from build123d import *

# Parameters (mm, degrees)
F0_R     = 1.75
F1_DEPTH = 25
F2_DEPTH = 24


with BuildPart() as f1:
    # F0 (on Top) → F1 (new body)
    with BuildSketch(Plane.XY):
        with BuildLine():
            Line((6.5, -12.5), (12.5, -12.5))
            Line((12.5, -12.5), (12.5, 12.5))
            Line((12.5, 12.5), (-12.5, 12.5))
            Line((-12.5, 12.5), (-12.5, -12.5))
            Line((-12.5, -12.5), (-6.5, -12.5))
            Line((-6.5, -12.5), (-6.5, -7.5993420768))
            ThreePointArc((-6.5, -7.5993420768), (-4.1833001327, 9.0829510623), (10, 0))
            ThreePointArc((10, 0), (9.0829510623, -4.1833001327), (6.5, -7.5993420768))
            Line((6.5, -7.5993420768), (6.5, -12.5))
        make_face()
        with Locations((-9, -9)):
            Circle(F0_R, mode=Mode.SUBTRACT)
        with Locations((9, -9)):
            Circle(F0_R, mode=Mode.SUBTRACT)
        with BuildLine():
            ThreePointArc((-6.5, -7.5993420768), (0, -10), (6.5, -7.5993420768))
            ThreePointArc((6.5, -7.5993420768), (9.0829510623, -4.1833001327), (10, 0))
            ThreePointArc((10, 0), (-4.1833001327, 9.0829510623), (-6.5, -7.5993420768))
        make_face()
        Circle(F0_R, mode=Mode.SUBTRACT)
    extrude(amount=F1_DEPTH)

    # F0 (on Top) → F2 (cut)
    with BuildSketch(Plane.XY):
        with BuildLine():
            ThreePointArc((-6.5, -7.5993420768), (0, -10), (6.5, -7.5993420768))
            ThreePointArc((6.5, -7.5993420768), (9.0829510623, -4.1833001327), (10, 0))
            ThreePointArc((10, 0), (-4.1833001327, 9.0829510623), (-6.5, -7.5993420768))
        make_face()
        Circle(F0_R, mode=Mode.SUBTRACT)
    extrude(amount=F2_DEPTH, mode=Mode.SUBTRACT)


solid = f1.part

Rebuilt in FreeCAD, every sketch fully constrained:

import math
import FreeCAD as App
import Part
import Sketcher

doc = App.newDocument("Part")
body = doc.addObject("PartDesign::Body", "Body")

# Sketch on XY plane
sketch1 = body.newObject("Sketcher::SketchObject", "Sketch")
sketch1.AttachmentSupport = (doc.getObject("XY_Plane"), [""])
sketch1.MapMode = "FlatFace"
sketch1.addGeometry(Part.LineSegment(App.Vector(6.5, -12.5, 0), App.Vector(12.5, -12.5, 0)), False)
sketch1.addGeometry(Part.LineSegment(App.Vector(12.5, -12.5, 0), App.Vector(12.5, 12.5, 0)), False)
sketch1.addGeometry(Part.LineSegment(App.Vector(12.5, 12.5, 0), App.Vector(-12.5, 12.5, 0)), False)
sketch1.addGeometry(Part.LineSegment(App.Vector(-12.5, 12.5, 0), App.Vector(-12.5, -12.5, 0)), False)
sketch1.addGeometry(Part.LineSegment(App.Vector(-12.5, -12.5, 0), App.Vector(-6.5, -12.5, 0)), False)
sketch1.addGeometry(Part.LineSegment(App.Vector(-6.5, -12.5, 0), App.Vector(-6.5, -7.599342, 0)), False)
sketch1.addGeometry(Part.ArcOfCircle(Part.Circle(App.Vector(0, 0, 0), App.Vector(0, 0, 1), 10), math.radians(-130.541602), math.radians(-49.458398)), False)
sketch1.addGeometry(Part.LineSegment(App.Vector(6.5, -7.599342, 0), App.Vector(6.5, -12.5, 0)), False)
sketch1.addGeometry(Part.Circle(App.Vector(-9, -9, 0), App.Vector(0, 0, 1), 1.75), False)
sketch1.addGeometry(Part.Circle(App.Vector(9, -9, 0), App.Vector(0, 0, 1), 1.75), False)
sketch1.addGeometry(Part.Circle(App.Vector(0, 0, 0), App.Vector(0, 0, 1), 1.75), False)
sketch1.addConstraint(Sketcher.Constraint("Coincident", 0, 2, 1, 1))
sketch1.addConstraint(Sketcher.Constraint("Coincident", 1, 2, 2, 1))
sketch1.addConstraint(Sketcher.Constraint("Coincident", 2, 2, 3, 1))
sketch1.addConstraint(Sketcher.Constraint("Coincident", 3, 2, 4, 1))
sketch1.addConstraint(Sketcher.Constraint("Coincident", 4, 2, 5, 1))
sketch1.addConstraint(Sketcher.Constraint("Coincident", 5, 2, 6, 1))
sketch1.addConstraint(Sketcher.Constraint("Coincident", 6, 2, 7, 1))
sketch1.addConstraint(Sketcher.Constraint("Coincident", 7, 2, 0, 1))
sketch1.addConstraint(Sketcher.Constraint("Horizontal", 0))
sketch1.addConstraint(Sketcher.Constraint("Vertical", 1))
sketch1.addConstraint(Sketcher.Constraint("Horizontal", 2))
sketch1.addConstraint(Sketcher.Constraint("Vertical", 3))
sketch1.addConstraint(Sketcher.Constraint("Horizontal", 4))
sketch1.addConstraint(Sketcher.Constraint("Vertical", 5))
sketch1.addConstraint(Sketcher.Constraint("Vertical", 7))
sketch1.addConstraint(Sketcher.Constraint("Coincident", 6, 3, -1, 1))
sketch1.addConstraint(Sketcher.Constraint("Coincident", 10, 3, -1, 1))
sketch1.addConstraint(Sketcher.Constraint("Equal", 8, 9))
sketch1.addConstraint(Sketcher.Constraint("Equal", 9, 10))
sketch1.addConstraint(Sketcher.Constraint("Symmetric", 0, 2, 2, 2, -1, 1))
sketch1.addConstraint(Sketcher.Constraint("Symmetric", 8, 3, 9, 3, -2))
sketch1.addConstraint(Sketcher.Constraint("Symmetric", 4, 2, 7, 2, -2))
sketch1.addConstraint(Sketcher.Constraint("Equal", 2, 1))
sketch1.addConstraint(Sketcher.Constraint("Radius", 6, 10.0))
sketch1.addConstraint(Sketcher.Constraint("Diameter", 8, 3.5))
sketch1.addConstraint(Sketcher.Constraint("DistanceX", 0, 1, 0, 2, 6.0))
sketch1.addConstraint(Sketcher.Constraint("DistanceX", 2, 2, 2, 1, 25.0))
sketch1.addConstraint(Sketcher.Constraint("DistanceX", 8, 3, -1, 1, 9.0))
sketch1.addConstraint(Sketcher.Constraint("DistanceY", 8, 3, -1, 1, 9.0))
pad1 = body.newObject("PartDesign::Pad", "Pad")
pad1.Profile = sketch1
pad1.Length = 25

# Sketch on XY plane
sketch2 = body.newObject("Sketcher::SketchObject", "Sketch001")
sketch2.AttachmentSupport = (doc.getObject("XY_Plane"), [""])
sketch2.MapMode = "FlatFace"
sketch2.addGeometry(Part.ArcOfCircle(Part.Circle(App.Vector(0, 0, 0), App.Vector(0, 0, 1), 10), math.radians(-130.541602), math.radians(-49.458398)), False)
sketch2.addGeometry(Part.ArcOfCircle(Part.Circle(App.Vector(0, 0, 0), App.Vector(0, 0, 1), 10), math.radians(-49.458398), math.radians(0)), False)
sketch2.addGeometry(Part.ArcOfCircle(Part.Circle(App.Vector(0, 0, 0), App.Vector(0, 0, 1), 10), math.radians(0), math.radians(229.458398)), False)
sketch2.addGeometry(Part.Circle(App.Vector(0, 0, 0), App.Vector(0, 0, 1), 1.75), False)
sketch2.addConstraint(Sketcher.Constraint("Tangent", 0, 2, 1, 1))
sketch2.addConstraint(Sketcher.Constraint("Tangent", 1, 2, 2, 1))
sketch2.addConstraint(Sketcher.Constraint("Tangent", 2, 2, 0, 1))
sketch2.addConstraint(Sketcher.Constraint("Coincident", 0, 3, -1, 1))
sketch2.addConstraint(Sketcher.Constraint("Coincident", 3, 3, -1, 1))
sketch2.addConstraint(Sketcher.Constraint("PointOnObject", 1, 2, -1))
sketch2.addConstraint(Sketcher.Constraint("Horizontal", 0, 2, 2, 2))
sketch2.addConstraint(Sketcher.Constraint("Radius", 0, 10.0))
sketch2.addConstraint(Sketcher.Constraint("Diameter", 3, 3.5))
sketch2.addConstraint(Sketcher.Constraint("DistanceX", 2, 2, 0, 2, 13.0))
pocket1 = body.newObject("PartDesign::Pocket", "Pocket")
pocket1.Profile = sketch2
pocket1.Length = 24
pocket1.Reversed = True

doc.recompute()
